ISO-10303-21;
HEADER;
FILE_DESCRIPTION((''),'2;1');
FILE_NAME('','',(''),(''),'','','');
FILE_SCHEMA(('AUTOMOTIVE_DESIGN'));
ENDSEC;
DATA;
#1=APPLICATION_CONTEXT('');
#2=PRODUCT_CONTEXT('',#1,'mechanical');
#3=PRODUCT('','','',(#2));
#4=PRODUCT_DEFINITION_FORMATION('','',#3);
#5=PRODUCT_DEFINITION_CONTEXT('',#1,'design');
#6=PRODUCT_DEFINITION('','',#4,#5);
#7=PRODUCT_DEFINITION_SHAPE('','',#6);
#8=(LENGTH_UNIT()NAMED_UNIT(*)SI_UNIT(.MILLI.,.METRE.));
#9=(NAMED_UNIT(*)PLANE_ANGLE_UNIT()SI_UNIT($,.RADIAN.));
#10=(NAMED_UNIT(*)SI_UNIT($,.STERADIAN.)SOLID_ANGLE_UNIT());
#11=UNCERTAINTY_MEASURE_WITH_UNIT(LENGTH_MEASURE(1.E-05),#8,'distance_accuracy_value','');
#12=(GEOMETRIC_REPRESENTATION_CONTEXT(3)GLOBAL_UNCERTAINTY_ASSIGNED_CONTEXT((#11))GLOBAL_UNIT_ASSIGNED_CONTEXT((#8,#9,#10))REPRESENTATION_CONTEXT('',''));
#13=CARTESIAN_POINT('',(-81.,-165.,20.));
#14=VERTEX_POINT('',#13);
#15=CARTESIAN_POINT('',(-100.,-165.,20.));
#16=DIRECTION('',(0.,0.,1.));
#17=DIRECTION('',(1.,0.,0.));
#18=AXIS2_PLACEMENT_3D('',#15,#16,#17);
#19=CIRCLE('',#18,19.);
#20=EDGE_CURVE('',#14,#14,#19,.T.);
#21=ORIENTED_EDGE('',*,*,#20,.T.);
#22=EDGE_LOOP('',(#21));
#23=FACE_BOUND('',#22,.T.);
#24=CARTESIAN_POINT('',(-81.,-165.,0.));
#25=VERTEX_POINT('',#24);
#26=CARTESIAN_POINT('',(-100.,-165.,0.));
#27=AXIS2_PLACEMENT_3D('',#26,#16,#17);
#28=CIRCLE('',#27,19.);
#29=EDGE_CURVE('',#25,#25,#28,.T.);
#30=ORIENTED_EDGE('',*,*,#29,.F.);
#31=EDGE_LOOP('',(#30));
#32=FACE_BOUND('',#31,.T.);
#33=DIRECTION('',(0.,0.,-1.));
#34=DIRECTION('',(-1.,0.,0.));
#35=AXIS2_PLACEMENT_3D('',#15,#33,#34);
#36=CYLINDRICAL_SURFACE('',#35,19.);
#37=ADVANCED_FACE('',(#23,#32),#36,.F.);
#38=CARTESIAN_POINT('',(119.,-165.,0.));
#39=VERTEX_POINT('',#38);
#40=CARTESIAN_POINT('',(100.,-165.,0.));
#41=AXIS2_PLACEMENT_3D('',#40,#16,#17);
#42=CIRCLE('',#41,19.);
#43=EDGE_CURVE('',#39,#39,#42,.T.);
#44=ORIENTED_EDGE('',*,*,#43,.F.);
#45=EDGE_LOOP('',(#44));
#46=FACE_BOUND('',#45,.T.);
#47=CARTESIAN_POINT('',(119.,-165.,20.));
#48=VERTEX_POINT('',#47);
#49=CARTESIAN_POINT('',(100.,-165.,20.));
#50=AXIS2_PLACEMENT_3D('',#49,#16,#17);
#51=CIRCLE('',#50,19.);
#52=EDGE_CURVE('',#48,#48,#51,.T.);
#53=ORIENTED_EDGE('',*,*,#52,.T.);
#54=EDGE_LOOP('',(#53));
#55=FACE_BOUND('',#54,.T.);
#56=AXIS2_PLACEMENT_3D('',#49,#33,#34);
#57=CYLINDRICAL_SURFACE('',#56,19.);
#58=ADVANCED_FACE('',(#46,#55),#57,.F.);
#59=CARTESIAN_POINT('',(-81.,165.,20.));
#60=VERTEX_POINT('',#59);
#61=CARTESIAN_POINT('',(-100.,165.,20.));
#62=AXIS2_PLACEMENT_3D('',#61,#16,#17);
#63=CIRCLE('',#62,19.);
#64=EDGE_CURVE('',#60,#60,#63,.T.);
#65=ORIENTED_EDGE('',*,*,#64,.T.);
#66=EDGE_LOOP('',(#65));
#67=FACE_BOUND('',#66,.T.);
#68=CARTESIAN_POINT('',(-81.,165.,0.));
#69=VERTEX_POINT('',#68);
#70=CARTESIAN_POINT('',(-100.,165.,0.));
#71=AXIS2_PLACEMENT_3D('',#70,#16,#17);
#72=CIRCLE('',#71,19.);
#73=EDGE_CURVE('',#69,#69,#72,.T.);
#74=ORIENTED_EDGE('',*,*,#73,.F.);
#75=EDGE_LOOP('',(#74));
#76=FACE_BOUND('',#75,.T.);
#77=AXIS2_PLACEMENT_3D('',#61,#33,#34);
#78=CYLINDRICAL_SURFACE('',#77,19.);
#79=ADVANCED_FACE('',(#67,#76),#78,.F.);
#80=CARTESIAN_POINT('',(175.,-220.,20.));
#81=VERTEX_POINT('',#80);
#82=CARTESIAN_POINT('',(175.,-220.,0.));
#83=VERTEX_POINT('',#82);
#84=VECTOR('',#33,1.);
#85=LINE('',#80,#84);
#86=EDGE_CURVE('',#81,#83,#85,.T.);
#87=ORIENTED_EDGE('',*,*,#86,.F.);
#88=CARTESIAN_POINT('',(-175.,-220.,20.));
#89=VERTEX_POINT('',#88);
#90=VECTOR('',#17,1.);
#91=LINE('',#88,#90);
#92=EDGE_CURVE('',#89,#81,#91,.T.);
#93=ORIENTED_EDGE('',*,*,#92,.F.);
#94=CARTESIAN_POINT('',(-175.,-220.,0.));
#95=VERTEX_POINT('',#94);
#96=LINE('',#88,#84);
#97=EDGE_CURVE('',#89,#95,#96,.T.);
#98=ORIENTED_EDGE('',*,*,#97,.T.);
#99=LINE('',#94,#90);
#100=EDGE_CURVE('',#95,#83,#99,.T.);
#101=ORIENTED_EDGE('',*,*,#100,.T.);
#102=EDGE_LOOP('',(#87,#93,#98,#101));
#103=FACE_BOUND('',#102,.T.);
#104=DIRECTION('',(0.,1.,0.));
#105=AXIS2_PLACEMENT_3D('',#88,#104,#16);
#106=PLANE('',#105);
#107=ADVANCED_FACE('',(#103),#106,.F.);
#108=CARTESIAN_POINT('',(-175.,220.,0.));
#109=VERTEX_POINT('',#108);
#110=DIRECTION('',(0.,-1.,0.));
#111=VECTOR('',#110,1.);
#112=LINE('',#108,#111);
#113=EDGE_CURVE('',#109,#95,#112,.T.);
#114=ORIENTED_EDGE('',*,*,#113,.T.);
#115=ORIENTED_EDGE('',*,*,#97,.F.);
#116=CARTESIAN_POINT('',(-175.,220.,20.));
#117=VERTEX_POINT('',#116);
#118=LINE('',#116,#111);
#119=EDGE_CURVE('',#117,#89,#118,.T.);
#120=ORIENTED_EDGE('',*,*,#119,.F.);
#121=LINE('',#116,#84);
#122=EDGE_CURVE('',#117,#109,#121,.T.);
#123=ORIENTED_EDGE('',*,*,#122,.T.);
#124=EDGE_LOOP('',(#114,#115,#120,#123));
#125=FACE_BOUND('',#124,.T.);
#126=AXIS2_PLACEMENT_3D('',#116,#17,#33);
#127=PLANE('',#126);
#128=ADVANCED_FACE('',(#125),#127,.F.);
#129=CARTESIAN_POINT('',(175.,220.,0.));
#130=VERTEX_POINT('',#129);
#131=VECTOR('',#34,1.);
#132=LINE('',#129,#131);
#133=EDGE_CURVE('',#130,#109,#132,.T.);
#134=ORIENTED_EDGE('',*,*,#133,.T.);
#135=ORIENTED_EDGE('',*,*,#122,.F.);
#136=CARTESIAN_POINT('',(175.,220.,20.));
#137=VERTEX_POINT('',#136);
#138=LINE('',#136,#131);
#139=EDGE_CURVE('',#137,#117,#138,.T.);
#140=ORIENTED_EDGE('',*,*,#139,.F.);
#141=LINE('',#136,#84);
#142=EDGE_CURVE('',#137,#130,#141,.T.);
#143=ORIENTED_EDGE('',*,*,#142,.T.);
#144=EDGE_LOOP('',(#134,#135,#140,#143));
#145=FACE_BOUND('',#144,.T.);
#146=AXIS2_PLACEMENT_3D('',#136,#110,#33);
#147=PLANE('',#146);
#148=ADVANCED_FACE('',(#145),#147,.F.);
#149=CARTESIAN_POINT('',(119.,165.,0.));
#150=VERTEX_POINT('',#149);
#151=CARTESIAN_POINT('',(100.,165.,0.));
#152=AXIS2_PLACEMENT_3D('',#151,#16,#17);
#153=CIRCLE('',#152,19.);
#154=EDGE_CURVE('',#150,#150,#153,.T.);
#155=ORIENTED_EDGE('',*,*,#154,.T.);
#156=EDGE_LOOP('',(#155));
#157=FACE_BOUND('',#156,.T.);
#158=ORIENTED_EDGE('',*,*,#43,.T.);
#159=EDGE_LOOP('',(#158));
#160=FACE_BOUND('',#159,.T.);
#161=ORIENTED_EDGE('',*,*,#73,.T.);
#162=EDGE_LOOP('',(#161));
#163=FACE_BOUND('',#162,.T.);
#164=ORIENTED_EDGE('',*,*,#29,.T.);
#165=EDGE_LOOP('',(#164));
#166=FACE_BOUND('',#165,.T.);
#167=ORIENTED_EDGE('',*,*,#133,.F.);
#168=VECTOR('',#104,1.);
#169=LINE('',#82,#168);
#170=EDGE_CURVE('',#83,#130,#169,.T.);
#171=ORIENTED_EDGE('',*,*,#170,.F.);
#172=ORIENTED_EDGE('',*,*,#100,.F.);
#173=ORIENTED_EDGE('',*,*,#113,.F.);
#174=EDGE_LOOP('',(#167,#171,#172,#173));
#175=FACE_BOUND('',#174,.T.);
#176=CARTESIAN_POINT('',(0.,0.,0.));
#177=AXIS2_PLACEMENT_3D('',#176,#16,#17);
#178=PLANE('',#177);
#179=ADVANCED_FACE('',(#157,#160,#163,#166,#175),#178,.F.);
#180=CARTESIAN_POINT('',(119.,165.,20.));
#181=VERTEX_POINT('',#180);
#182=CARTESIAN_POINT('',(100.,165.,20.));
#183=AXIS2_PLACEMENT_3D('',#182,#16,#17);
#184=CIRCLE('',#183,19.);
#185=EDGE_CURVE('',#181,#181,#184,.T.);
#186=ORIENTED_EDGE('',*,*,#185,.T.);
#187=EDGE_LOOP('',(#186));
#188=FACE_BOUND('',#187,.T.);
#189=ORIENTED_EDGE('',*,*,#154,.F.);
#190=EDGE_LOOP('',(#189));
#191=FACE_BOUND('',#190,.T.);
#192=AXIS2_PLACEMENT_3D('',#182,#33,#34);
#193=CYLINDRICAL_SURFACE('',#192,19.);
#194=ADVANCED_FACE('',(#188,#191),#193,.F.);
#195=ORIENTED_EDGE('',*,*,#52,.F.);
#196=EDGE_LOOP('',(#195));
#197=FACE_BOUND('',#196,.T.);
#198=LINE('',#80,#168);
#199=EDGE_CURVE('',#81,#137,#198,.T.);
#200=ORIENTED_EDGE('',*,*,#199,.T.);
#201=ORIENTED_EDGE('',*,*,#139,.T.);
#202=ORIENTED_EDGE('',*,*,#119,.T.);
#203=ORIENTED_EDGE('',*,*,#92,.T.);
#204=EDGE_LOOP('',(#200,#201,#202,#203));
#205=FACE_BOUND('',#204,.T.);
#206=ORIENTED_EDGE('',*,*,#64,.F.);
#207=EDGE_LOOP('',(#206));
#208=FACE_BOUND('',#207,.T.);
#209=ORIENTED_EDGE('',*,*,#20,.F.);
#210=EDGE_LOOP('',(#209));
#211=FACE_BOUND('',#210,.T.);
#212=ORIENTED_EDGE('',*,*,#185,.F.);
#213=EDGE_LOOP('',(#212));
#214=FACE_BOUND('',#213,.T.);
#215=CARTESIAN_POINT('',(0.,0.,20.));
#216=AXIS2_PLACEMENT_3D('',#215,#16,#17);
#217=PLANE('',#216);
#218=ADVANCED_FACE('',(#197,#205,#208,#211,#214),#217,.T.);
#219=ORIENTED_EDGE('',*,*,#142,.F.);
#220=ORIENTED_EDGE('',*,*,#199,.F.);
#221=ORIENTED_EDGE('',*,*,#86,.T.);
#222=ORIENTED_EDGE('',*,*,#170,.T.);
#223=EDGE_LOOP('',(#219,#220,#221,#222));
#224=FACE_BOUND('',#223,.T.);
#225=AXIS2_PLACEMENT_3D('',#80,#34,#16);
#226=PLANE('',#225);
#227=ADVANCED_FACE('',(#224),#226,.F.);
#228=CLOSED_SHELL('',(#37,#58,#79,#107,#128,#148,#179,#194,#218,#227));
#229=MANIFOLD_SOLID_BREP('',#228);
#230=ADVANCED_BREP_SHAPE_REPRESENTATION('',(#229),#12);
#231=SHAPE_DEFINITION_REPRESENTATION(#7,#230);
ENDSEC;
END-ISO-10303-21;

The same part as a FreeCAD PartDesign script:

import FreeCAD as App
import Part
import Sketcher
from FreeCAD import Vector
Q = App.Units.Quantity

doc = App.newDocument("Part")
params = doc.addObject("Spreadsheet::Sheet", "Params")
for row, (alias, value) in enumerate([
    ("sketch1_diameter", "38 mm"),
    ("sketch1_width", "350 mm"),
    ("sketch1_height", "440 mm"),
    ("pad1_length", "20 mm"),
], start=1):
    params.set(f"A{row}", alias)
    params.set(f"B{row}", "=" + value)
    params.setAlias(f"B{row}", alias)

body = doc.addObject("PartDesign::Body", "Body")

# Sketch on XY plane
sketch1 = doc.addObject("Sketcher::SketchObject", "Sketch")
body.addObject(sketch1)
sketch1.AttachmentSupport = (doc.XY_Plane, [""])
sketch1.MapMode = "FlatFace"
sketch1.addGeometry(Part.LineSegment(Vector(-175, 220, 0), Vector(-175, -220, 0)), False)
sketch1.addGeometry(Part.LineSegment(Vector(-175, -220, 0), Vector(175, -220, 0)), False)
sketch1.addGeometry(Part.LineSegment(Vector(175, -220, 0), Vector(175, 220, 0)), False)
sketch1.addGeometry(Part.LineSegment(Vector(175, 220, 0), Vector(-175, 220, 0)), False)
sketch1.addGeometry(Part.Circle(Vector(-100, -165, 0), Vector(0, 0, 1), 19), False)
sketch1.addGeometry(Part.Circle(Vector(100, -165, 0), Vector(0, 0, 1), 19), False)
sketch1.addGeometry(Part.Circle(Vector(-100, 165, 0), Vector(0, 0, 1), 19), False)
sketch1.addGeometry(Part.Circle(Vector(100, 165, 0), Vector(0, 0, 1), 19), False)
sketch1.addConstraint(Sketcher.Constraint("Coincident", 0, 2, 1, 1))
sketch1.addConstraint(Sketcher.Constraint("Coincident", 1, 2, 2, 1))
sketch1.addConstraint(Sketcher.Constraint("Coincident", 2, 2, 3, 1))
sketch1.addConstraint(Sketcher.Constraint("Coincident", 3, 2, 0, 1))
sketch1.addConstraint(Sketcher.Constraint("Vertical", 0))
sketch1.addConstraint(Sketcher.Constraint("Horizontal", 1))
sketch1.addConstraint(Sketcher.Constraint("Vertical", 2))
sketch1.addConstraint(Sketcher.Constraint("Horizontal", 3))
sketch1.addConstraint(Sketcher.Constraint("Equal", 4, 5))
sketch1.addConstraint(Sketcher.Constraint("Equal", 5, 6))
sketch1.addConstraint(Sketcher.Constraint("Equal", 6, 7))
sketch1.addConstraint(Sketcher.Constraint("Symmetric", 5, 3, 6, 3, -1, 1))
sketch1.addConstraint(Sketcher.Constraint("Symmetric", 4, 3, 7, 3, -1, 1))
sketch1.addConstraint(Sketcher.Constraint("Symmetric", 0, 2, 2, 2, -1, 1))
sketch1.addConstraint(Sketcher.Constraint("Symmetric", 4, 3, 5, 3, -2))
sketch1.addConstraint(Sketcher.Constraint("Diameter", 4, Q("38 mm")))
sketch1.addConstraint(Sketcher.Constraint("DistanceX", 1, 1, 1, 2, Q("350 mm")))
sketch1.addConstraint(Sketcher.Constraint("DistanceY", 0, 2, 0, 1, Q("440 mm")))
sketch1.addConstraint(Sketcher.Constraint("DistanceX", 4, 3, -1, 1, Q("100 mm")))
sketch1.addConstraint(Sketcher.Constraint("DistanceY", 4, 3, -1, 1, Q("165 mm")))
sketch1.setExpression("Constraints[15]", "Params.sketch1_diameter")
sketch1.setExpression("Constraints[16]", "Params.sketch1_width")
sketch1.setExpression("Constraints[17]", "Params.sketch1_height")
pad1 = doc.addObject("PartDesign::Pad", "Pad")
body.addObject(pad1)
pad1.Profile = sketch1
pad1.setExpression("Length", "Params.pad1_length")

doc.recompute()
